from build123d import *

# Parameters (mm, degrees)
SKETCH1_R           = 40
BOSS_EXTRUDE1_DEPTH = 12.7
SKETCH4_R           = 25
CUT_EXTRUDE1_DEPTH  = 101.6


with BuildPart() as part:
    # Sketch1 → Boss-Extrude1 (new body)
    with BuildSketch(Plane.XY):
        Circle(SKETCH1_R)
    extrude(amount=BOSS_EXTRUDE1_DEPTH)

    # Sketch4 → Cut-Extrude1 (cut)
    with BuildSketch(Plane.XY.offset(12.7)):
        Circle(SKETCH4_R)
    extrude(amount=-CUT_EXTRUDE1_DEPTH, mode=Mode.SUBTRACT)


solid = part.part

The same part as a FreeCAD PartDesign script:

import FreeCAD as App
import Part
import Sketcher
from FreeCAD import Vector

doc = App.newDocument("Part")
params = doc.addObject("Spreadsheet::Sheet", "Params")
for row, (alias, value) in enumerate([
    ("sketch1_diameter", "80 mm"),
    ("pad1_length", "12.7 mm"),
    ("sketch2_diameter", "50 mm"),
    ("pocket1_length", "101.6 mm"),
], start=1):
    params.set(f"A{row}", alias)
    params.set(f"B{row}", "=" + value)
    params.setAlias(f"B{row}", alias)

body = doc.addObject("PartDesign::Body", "Body")

sketch1 = doc.addObject("Sketcher::SketchObject", "Sketch")
body.addObject(sketch1)
sketch1.AttachmentSupport = (doc.XY_Plane, [""])
sketch1.MapMode = "FlatFace"
sketch1.addGeometry(Part.Circle(Vector(0, 0, 0), Vector(0, 0, 1), 40), False)
sketch1.addConstraint([
    Sketcher.Constraint("Coincident", 0, 3, -1, 1),
    Sketcher.Constraint("Diameter", 0, 80.0),
])
sketch1.setExpression("Constraints[1]", "Params.sketch1_diameter")
pad1 = doc.addObject("PartDesign::Pad", "Pad")
body.addObject(pad1)
pad1.Profile = sketch1
pad1.setExpression("Length", "Params.pad1_length")

sketch2 = doc.addObject("Sketcher::SketchObject", "Sketch001")
body.addObject(sketch2)
sketch2.AttachmentSupport = (doc.XY_Plane, [""])
sketch2.MapMode = "FlatFace"
sketch2.AttachmentOffset = App.Placement(Vector(0, 0, 12.7), App.Rotation())
sketch2.addGeometry(Part.Circle(Vector(0, 0, 0), Vector(0, 0, 1), 25), False)
sketch2.addConstraint([
    Sketcher.Constraint("Coincident", 0, 3, -1, 1),
    Sketcher.Constraint("Diameter", 0, 50.0),
])
sketch2.setExpression("Constraints[1]", "Params.sketch2_diameter")
pocket1 = doc.addObject("PartDesign::Pocket", "Pocket")
body.addObject(pocket1)
pocket1.Profile = sketch2
pocket1.setExpression("Length", "Params.pocket1_length")

doc.recompute()
